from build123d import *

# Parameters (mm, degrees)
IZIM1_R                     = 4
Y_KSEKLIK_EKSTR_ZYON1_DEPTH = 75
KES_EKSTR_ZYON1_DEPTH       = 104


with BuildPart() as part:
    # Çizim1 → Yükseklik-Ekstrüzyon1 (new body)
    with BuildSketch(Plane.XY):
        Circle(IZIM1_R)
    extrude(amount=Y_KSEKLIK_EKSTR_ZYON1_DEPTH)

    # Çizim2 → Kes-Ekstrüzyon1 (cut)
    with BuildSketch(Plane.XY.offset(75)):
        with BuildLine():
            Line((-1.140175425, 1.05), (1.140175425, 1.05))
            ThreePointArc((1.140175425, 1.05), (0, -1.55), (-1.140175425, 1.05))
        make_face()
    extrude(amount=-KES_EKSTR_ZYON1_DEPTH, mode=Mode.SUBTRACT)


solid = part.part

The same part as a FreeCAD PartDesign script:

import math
import FreeCAD as App
import Part
import Sketcher

V = App.Vector
Q = App.Units.Quantity

doc = App.newDocument("Part")
body = doc.addObject("PartDesign::Body", "Body")

# Sketch on XY plane
sketch1 = doc.addObject("Sketcher::SketchObject", "Sketch")
body.addObject(sketch1)
sketch1.AttachmentSupport = (doc.XY_Plane, [""])
sketch1.MapMode = "FlatFace"
sketch1.addGeometry(Part.Circle(V(0, 0, 0), V(0, 0, 1), 4), False)
sketch1.addConstraint(Sketcher.Constraint("Coincident", 0, 3, -1, 1))
sketch1.addConstraint(Sketcher.Constraint("Diameter", 0, Q("8 mm")))
pad1 = doc.addObject("PartDesign::Pad", "Pad")
body.addObject(pad1)
pad1.Profile = sketch1
pad1.Length = 75

# Sketch on XY plane
sketch2 = doc.addObject("Sketcher::SketchObject", "Sketch001")
body.addObject(sketch2)
sketch2.AttachmentSupport = (doc.XY_Plane, [""])
sketch2.MapMode = "FlatFace"
sketch2.AttachmentOffset = App.Placement(V(0, 0, 75), App.Rotation())
sketch2.addGeometry(Part.LineSegment(V(1.140175, 1.05, 0), V(-1.140175, 1.05, 0)), False)
sketch2.addGeometry(Part.ArcOfCircle(Part.Circle(V(0, 0, 0), V(0, 0, 1), 1.55), math.radians(137.35769), math.radians(402.64231)), False)
sketch2.addConstraint(Sketcher.Constraint("Coincident", 0, 1, 1, 2))
sketch2.addConstraint(Sketcher.Constraint("Coincident", 1, 1, 0, 2))
sketch2.addConstraint(Sketcher.Constraint("Horizontal", 0))
sketch2.addConstraint(Sketcher.Constraint("Coincident", 1, 3, -1, 1))
sketch2.addConstraint(Sketcher.Constraint("Radius", 1, Q("1.55 mm")))
sketch2.addConstraint(Sketcher.Constraint("DistanceY", -1, 1, 0, 1, Q("1.05 mm")))
pocket1 = doc.addObject("PartDesign::Pocket", "Pocket")
body.addObject(pocket1)
pocket1.Profile = sketch2
pocket1.Length = 104

doc.recompute()
